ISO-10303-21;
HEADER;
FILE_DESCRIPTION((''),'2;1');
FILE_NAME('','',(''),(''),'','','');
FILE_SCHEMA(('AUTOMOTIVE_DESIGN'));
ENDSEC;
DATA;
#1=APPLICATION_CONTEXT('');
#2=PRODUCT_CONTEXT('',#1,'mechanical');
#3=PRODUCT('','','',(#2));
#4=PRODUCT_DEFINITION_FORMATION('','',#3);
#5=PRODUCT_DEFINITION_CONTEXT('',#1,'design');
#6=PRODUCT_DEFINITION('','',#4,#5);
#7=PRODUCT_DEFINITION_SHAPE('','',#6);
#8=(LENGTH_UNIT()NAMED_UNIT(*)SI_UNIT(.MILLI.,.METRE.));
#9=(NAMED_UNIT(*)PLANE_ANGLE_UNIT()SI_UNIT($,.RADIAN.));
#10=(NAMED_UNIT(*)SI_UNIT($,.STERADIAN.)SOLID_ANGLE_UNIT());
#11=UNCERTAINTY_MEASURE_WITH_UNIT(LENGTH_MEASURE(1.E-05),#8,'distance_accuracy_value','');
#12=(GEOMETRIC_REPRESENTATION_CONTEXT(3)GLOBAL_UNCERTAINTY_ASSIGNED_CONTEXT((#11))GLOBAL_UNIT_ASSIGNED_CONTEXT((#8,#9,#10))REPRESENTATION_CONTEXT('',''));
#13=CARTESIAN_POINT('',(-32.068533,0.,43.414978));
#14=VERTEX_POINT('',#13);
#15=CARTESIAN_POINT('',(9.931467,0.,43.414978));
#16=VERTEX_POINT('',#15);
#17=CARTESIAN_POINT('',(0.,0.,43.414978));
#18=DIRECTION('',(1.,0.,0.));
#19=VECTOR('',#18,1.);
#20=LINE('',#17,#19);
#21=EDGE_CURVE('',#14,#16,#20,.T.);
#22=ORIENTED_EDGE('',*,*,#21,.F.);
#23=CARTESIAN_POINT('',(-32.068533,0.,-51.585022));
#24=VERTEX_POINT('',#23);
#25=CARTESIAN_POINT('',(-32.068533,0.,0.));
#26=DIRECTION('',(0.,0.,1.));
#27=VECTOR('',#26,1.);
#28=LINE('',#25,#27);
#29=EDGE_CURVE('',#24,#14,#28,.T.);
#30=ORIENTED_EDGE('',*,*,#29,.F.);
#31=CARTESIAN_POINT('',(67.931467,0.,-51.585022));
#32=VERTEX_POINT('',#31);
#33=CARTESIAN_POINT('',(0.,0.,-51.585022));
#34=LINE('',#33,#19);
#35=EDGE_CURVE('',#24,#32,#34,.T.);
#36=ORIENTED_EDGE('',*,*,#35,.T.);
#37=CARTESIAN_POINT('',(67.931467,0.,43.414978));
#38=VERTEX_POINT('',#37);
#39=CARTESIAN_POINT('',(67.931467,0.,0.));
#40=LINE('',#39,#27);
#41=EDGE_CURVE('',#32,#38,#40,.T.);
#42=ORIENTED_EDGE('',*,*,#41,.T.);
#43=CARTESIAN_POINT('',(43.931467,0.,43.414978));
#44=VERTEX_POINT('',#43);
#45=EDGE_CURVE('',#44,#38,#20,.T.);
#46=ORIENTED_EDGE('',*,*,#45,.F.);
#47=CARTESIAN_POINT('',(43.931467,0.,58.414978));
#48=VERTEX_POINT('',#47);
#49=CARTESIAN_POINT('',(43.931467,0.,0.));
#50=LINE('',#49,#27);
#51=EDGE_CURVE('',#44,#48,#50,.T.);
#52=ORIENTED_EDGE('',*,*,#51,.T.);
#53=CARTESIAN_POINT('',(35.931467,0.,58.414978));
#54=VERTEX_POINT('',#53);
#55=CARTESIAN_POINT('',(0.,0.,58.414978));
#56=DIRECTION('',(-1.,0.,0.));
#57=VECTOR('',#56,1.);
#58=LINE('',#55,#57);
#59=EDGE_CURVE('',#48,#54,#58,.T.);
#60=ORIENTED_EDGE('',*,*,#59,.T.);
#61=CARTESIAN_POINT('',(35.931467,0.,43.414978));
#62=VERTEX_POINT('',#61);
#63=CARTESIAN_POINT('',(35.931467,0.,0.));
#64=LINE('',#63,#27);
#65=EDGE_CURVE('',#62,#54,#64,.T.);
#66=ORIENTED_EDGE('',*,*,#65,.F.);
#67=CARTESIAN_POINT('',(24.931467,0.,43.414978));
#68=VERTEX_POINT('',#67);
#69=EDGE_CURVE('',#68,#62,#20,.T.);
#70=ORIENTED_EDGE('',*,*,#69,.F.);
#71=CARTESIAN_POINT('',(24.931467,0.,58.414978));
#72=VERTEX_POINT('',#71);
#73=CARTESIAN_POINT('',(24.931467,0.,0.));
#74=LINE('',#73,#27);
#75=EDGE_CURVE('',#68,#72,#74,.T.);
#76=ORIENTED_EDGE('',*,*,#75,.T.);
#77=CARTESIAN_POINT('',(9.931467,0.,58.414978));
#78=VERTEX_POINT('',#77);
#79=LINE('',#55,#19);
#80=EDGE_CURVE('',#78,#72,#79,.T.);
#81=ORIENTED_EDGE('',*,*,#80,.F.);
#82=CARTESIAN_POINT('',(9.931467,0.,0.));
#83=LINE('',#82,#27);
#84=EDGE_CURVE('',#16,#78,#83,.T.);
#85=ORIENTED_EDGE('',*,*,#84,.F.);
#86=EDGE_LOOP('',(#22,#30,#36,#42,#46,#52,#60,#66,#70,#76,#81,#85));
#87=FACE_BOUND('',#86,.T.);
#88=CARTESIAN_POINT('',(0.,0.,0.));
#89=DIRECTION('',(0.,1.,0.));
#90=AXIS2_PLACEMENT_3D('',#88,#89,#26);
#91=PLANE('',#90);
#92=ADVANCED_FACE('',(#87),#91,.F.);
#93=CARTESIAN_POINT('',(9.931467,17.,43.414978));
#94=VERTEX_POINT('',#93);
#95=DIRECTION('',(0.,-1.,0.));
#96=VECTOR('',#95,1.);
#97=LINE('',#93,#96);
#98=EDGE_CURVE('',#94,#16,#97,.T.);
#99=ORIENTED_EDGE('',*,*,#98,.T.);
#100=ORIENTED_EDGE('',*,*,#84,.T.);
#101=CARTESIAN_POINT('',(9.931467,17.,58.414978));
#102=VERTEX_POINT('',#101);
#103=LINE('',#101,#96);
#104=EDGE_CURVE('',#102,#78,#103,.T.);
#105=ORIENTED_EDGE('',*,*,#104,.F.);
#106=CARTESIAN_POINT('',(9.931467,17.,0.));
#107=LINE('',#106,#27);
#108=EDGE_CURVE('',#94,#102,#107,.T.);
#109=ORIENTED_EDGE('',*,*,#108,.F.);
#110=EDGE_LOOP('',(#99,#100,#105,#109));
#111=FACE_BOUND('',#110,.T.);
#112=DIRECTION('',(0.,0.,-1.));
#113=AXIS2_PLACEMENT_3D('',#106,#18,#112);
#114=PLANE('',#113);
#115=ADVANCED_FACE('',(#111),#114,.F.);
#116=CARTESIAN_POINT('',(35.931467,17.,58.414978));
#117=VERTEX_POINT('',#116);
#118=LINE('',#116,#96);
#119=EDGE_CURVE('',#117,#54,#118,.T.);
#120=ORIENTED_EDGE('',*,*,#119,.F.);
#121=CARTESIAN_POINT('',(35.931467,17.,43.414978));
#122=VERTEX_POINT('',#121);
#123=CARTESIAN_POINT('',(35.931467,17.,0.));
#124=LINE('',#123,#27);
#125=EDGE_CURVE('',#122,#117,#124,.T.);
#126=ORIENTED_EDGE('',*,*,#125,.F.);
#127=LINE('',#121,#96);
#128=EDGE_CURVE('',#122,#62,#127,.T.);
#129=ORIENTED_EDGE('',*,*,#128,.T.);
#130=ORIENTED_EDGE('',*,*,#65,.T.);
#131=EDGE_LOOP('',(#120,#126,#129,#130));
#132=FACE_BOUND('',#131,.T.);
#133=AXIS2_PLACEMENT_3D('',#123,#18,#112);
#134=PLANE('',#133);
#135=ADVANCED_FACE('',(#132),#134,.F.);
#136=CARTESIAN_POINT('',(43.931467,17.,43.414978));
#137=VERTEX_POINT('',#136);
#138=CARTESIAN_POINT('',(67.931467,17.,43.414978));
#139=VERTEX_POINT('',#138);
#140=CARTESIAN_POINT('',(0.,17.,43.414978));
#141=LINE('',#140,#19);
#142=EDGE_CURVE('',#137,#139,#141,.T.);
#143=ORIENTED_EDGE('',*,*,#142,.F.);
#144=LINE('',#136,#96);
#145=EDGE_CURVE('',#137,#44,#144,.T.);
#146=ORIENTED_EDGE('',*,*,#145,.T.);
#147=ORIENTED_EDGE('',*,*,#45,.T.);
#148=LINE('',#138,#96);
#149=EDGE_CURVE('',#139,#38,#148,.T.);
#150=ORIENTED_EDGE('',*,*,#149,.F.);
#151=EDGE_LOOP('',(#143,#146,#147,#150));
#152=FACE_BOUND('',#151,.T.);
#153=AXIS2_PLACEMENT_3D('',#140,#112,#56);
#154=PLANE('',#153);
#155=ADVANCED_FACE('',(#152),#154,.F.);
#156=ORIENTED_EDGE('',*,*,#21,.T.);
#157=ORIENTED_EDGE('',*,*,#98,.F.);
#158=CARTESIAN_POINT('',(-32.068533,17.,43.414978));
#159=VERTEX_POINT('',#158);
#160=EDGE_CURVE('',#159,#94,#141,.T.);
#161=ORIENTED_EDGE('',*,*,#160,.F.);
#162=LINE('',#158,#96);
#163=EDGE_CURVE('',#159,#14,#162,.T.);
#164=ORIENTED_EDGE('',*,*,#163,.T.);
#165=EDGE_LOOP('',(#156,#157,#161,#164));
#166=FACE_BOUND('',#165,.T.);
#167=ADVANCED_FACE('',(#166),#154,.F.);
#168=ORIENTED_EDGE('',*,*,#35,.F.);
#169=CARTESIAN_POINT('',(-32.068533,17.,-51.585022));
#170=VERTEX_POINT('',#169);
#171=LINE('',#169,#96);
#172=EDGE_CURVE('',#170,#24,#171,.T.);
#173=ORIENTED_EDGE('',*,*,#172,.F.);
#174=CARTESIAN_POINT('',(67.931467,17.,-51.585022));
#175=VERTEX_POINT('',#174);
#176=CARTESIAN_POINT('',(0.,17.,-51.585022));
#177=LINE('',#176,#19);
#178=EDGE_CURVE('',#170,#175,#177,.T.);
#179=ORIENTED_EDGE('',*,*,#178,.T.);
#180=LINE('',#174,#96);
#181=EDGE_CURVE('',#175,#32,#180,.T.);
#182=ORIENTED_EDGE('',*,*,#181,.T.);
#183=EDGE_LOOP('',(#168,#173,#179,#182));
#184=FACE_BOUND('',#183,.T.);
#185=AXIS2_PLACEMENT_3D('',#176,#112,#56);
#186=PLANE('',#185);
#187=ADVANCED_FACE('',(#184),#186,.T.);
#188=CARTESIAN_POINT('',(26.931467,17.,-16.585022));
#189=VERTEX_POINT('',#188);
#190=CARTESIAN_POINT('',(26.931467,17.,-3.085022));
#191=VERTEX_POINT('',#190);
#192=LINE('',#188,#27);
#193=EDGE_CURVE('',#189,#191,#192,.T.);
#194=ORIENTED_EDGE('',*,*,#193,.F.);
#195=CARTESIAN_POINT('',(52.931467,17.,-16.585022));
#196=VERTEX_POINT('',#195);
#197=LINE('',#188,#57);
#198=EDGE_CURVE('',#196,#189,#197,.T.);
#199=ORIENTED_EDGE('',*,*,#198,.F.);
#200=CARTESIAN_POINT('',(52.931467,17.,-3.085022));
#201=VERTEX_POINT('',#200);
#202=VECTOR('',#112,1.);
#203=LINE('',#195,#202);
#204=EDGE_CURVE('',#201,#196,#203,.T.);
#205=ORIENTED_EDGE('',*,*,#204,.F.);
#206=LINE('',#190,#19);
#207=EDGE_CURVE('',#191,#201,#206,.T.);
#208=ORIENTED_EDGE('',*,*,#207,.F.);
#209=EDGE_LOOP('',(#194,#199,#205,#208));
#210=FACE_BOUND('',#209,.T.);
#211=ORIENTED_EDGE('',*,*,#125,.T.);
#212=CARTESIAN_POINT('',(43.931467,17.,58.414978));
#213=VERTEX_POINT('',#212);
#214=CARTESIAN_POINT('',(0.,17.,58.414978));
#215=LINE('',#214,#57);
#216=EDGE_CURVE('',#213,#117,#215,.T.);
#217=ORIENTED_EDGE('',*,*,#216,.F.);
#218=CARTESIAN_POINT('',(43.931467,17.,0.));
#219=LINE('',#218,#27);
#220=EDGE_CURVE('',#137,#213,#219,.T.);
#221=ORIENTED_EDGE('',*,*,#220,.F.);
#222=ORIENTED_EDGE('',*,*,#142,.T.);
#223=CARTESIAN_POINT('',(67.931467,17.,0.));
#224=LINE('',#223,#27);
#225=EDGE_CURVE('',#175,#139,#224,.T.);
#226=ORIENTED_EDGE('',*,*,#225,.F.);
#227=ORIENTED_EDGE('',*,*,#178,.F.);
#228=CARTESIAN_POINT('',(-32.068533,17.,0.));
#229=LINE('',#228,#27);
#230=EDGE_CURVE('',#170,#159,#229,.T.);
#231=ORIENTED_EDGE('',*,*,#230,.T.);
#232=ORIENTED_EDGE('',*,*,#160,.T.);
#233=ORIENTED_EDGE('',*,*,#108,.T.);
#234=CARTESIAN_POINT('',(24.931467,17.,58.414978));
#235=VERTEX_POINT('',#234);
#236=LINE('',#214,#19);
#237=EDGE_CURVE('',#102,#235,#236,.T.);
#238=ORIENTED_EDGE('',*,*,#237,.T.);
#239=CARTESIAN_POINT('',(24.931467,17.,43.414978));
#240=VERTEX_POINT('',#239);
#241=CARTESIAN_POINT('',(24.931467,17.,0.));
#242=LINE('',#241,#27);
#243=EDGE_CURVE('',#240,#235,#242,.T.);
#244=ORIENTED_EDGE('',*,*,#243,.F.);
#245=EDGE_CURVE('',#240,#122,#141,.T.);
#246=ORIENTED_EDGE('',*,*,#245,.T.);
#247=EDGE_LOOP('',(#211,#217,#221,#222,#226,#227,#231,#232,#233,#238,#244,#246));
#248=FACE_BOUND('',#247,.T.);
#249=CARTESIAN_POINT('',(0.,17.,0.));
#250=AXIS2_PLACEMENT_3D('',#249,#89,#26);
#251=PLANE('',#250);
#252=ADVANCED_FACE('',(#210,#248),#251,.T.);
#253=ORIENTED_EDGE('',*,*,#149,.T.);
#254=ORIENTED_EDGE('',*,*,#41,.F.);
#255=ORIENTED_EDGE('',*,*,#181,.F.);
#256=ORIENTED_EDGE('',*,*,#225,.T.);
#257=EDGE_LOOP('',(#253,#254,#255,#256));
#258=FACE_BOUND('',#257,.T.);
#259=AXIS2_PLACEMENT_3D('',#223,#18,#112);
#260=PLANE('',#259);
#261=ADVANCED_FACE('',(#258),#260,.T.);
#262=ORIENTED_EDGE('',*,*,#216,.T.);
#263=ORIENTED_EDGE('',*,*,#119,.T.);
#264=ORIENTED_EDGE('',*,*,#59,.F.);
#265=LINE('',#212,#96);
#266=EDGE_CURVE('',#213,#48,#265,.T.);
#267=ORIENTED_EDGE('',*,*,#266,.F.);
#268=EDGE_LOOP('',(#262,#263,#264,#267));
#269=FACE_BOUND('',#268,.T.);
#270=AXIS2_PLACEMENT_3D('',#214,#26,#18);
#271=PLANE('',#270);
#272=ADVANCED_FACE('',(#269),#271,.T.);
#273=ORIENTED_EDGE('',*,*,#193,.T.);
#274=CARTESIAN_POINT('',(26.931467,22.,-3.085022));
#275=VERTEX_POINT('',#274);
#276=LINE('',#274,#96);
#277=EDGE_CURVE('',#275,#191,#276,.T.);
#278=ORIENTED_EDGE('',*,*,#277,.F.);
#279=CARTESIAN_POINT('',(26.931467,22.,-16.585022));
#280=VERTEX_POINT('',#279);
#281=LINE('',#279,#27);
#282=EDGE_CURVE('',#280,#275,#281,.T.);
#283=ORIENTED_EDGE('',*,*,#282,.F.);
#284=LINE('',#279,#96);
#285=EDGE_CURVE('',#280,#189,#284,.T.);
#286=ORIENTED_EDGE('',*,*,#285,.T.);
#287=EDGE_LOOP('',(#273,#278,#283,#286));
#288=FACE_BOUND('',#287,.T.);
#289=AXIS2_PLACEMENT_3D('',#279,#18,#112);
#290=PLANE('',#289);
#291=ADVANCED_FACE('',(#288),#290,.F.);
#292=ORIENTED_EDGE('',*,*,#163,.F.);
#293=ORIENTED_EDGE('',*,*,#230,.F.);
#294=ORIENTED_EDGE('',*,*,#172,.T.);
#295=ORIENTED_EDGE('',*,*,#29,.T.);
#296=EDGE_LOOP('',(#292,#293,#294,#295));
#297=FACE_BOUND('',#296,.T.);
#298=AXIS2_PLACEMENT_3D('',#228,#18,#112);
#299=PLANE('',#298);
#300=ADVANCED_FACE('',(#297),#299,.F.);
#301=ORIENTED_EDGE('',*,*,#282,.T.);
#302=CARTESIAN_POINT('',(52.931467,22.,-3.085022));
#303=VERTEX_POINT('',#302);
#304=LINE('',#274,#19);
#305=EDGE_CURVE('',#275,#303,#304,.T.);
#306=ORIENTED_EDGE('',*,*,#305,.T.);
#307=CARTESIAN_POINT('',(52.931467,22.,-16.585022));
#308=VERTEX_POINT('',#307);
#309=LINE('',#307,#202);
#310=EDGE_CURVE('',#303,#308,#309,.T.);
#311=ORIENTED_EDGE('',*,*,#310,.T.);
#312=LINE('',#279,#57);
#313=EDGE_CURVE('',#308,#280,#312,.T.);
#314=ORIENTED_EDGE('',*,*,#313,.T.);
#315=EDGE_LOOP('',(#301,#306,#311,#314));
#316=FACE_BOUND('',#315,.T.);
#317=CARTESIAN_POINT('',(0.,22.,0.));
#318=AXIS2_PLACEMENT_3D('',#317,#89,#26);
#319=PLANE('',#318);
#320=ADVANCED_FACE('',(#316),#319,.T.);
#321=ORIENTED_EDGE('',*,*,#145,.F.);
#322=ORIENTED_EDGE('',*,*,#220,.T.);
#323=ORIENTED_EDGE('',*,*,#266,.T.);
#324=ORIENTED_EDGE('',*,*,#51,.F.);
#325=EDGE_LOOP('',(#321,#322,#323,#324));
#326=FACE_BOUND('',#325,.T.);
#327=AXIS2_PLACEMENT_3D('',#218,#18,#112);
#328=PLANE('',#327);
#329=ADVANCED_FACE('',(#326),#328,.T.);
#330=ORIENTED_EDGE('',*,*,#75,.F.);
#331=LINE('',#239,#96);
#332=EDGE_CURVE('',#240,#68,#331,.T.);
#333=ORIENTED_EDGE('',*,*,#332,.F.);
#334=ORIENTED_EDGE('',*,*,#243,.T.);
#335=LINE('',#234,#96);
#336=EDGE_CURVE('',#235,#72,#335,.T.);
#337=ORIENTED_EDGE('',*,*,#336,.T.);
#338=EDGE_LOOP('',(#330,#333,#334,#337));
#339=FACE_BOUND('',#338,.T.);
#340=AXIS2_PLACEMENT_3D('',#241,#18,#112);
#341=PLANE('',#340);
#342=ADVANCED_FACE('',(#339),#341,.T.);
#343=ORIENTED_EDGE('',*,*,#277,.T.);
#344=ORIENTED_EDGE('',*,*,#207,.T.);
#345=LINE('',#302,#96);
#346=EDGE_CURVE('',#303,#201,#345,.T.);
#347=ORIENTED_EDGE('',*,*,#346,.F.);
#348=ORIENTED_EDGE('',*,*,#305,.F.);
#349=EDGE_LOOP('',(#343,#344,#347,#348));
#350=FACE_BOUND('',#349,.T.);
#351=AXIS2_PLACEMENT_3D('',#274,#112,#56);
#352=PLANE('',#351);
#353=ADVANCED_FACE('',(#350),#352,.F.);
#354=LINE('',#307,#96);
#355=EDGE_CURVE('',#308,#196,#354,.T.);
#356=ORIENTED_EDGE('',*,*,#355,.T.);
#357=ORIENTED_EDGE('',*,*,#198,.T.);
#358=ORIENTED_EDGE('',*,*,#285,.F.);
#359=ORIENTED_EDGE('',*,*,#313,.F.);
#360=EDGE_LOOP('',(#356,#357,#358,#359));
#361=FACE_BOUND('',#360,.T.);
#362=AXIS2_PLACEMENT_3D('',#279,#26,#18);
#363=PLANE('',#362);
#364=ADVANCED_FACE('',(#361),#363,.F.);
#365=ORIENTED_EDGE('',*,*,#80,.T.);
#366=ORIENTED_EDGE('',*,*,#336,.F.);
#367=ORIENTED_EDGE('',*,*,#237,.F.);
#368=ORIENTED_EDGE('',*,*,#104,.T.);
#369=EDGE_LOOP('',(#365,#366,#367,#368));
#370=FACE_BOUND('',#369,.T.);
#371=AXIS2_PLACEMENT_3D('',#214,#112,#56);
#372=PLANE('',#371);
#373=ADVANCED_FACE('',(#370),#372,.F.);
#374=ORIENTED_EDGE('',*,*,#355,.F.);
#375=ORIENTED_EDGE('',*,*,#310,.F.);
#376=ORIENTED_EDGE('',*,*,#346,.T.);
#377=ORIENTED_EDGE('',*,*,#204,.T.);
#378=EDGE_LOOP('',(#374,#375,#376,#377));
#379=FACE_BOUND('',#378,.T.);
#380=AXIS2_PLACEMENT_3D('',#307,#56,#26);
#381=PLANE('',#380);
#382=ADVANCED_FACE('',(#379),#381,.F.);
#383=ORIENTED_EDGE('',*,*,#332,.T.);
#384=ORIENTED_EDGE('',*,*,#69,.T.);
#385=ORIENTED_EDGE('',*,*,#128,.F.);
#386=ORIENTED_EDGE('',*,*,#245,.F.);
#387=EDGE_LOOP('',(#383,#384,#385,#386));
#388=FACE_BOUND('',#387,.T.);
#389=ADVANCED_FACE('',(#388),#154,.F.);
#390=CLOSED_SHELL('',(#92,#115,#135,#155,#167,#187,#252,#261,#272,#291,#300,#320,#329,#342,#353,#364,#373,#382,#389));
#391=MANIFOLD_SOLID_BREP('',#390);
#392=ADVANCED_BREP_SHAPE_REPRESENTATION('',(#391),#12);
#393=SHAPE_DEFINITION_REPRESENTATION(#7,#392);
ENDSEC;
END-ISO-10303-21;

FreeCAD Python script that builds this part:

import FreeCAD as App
import Part
import Sketcher
from FreeCAD import Vector
Q = App.Units.Quantity

doc = App.newDocument("Part")
body = doc.addObject("PartDesign::Body", "Body")

sketch1 = body.newObject("Sketcher::SketchObject", "Sketch")
sketch1.AttachmentSupport = (doc.getObject("XZ_Plane"), [""])
sketch1.MapMode = "FlatFace"
sketch1.addGeometry([
    Part.LineSegment(Vector(24.931467, 43.414978, 0), Vector(35.931467, 43.414978, 0)),
    Part.LineSegment(Vector(35.931467, 43.414978, 0), Vector(35.931467, 58.414978, 0)),
    Part.LineSegment(Vector(35.931467, 58.414978, 0), Vector(43.931467, 58.414978, 0)),
    Part.LineSegment(Vector(43.931467, 58.414978, 0), Vector(43.931467, 43.414978, 0)),
    Part.LineSegment(Vector(43.931467, 43.414978, 0), Vector(67.931467, 43.414978, 0)),
    Part.LineSegment(Vector(67.931467, 43.414978, 0), Vector(67.931467, -51.585022, 0)),
    Part.LineSegment(Vector(67.931467, -51.585022, 0), Vector(-32.068533, -51.585022, 0)),
    Part.LineSegment(Vector(-32.068533, -51.585022, 0), Vector(-32.068533, 43.414978, 0)),
    Part.LineSegment(Vector(-32.068533, 43.414978, 0), Vector(9.931467, 43.414978, 0)),
    Part.LineSegment(Vector(9.931467, 43.414978, 0), Vector(9.931467, 58.414978, 0)),
    Part.LineSegment(Vector(9.931467, 58.414978, 0), Vector(24.931467, 58.414978, 0)),
    Part.LineSegment(Vector(24.931467, 58.414978, 0), Vector(24.931467, 43.414978, 0)),
], False)
sketch1.addConstraint([
    Sketcher.Constraint("Coincident", 0, 2, 1, 1),
    Sketcher.Constraint("Coincident", 1, 2, 2, 1),
    Sketcher.Constraint("Coincident", 2, 2, 3, 1),
    Sketcher.Constraint("Coincident", 3, 2, 4, 1),
    Sketcher.Constraint("Coincident", 4, 2, 5, 1),
    Sketcher.Constraint("Coincident", 5, 2, 6, 1),
    Sketcher.Constraint("Coincident", 6, 2, 7, 1),
    Sketcher.Constraint("Coincident", 7, 2, 8, 1),
    Sketcher.Constraint("Coincident", 8, 2, 9, 1),
    Sketcher.Constraint("Coincident", 9, 2, 10, 1),
    Sketcher.Constraint("Coincident", 10, 2, 11, 1),
    Sketcher.Constraint("Coincident", 11, 2, 0, 1),
    Sketcher.Constraint("Horizontal", 0),
    Sketcher.Constraint("Vertical", 1),
    Sketcher.Constraint("Horizontal", 2),
    Sketcher.Constraint("Vertical", 3),
    Sketcher.Constraint("Horizontal", 4),
    Sketcher.Constraint("Vertical", 5),
    Sketcher.Constraint("Horizontal", 6),
    Sketcher.Constraint("Vertical", 7),
    Sketcher.Constraint("Horizontal", 8),
    Sketcher.Constraint("Vertical", 9),
    Sketcher.Constraint("Horizontal", 10),
    Sketcher.Constraint("Vertical", 11),
    Sketcher.Constraint("Horizontal", 0, 2, 3, 2),
    Sketcher.Constraint("Horizontal", 4, 2, 7, 2),
    Sketcher.Constraint("Horizontal", 2, 2, 9, 2),
    Sketcher.Constraint("Equal", 10, 1),
    Sketcher.Constraint("DistanceX", 0, 1, 0, 2, Q("11 mm")),
    Sketcher.Constraint("DistanceX", 2, 1, 2, 2, Q("8 mm")),
    Sketcher.Constraint("DistanceX", 4, 1, 4, 2, Q("24 mm")),
    Sketcher.Constraint("DistanceX", 6, 2, 6, 1, Q("100 mm")),
    Sketcher.Constraint("DistanceX", 8, 1, 8, 2, Q("42 mm")),
    Sketcher.Constraint("DistanceY", 5, 2, 5, 1, Q("95 mm")),
    Sketcher.Constraint("DistanceX", -1, 1, 0, 2, Q("35.931467 mm")),
    Sketcher.Constraint("DistanceY", -1, 1, 0, 2, Q("43.414978 mm")),
])
pad1 = body.newObject("PartDesign::Pad", "Pad")
pad1.Profile = sketch1
pad1.Length = 17
pad1.Reversed = True

sketch2 = body.newObject("Sketcher::SketchObject", "Sketch001")
sketch2.AttachmentSupport = (doc.getObject("XZ_Plane"), [""])
sketch2.MapMode = "FlatFace"
sketch2.AttachmentOffset = App.Placement(Vector(0, 0, -17), App.Rotation())
sketch2.addGeometry([
    Part.LineSegment(Vector(26.931467, -16.585022, 0), Vector(26.931467, -3.085022, 0)),
    Part.LineSegment(Vector(26.931467, -3.085022, 0), Vector(52.931467, -3.085022, 0)),
    Part.LineSegment(Vector(52.931467, -3.085022, 0), Vector(52.931467, -16.585022, 0)),
    Part.LineSegment(Vector(52.931467, -16.585022, 0), Vector(26.931467, -16.585022, 0)),
], False)
sketch2.addConstraint([
    Sketcher.Constraint("Coincident", 0, 2, 1, 1),
    Sketcher.Constraint("Coincident", 1, 2, 2, 1),
    Sketcher.Constraint("Coincident", 2, 2, 3, 1),
    Sketcher.Constraint("Coincident", 3, 2, 0, 1),
    Sketcher.Constraint("Vertical", 0),
    Sketcher.Constraint("Horizontal", 1),
    Sketcher.Constraint("Vertical", 2),
    Sketcher.Constraint("Horizontal", 3),
    Sketcher.Constraint("DistanceX", 1, 1, 1, 2, Q("26 mm")),
    Sketcher.Constraint("DistanceY", 0, 1, 0, 2, Q("13.5 mm")),
    Sketcher.Constraint("DistanceX", -1, 1, 0, 2, Q("26.931467 mm")),
    Sketcher.Constraint("DistanceY", 0, 2, -1, 1, Q("3.085022 mm")),
])
pad2 = body.newObject("PartDesign::Pad", "Pad001")
pad2.Profile = sketch2
pad2.Length = 5
pad2.Reversed = True

doc.recompute()
